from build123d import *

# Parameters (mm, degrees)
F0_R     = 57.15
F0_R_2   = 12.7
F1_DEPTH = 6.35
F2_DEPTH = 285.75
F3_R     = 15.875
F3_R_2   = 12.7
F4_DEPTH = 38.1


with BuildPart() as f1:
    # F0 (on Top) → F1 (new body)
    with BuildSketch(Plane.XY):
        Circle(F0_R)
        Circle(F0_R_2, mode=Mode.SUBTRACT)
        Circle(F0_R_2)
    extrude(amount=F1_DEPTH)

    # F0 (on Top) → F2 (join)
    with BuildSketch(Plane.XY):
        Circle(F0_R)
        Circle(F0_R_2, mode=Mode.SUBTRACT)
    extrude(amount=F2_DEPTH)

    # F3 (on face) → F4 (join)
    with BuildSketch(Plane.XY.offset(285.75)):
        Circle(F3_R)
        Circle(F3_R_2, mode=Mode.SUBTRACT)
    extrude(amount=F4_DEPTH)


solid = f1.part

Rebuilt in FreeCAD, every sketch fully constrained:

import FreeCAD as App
import Part
import Sketcher

V = App.Vector
Q = App.Units.Quantity

doc = App.newDocument("Part")
body = doc.addObject("PartDesign::Body", "Body")

sketch1 = doc.addObject("Sketcher::SketchObject", "Sketch")
body.addObject(sketch1)
sketch1.AttachmentSupport = (doc.XY_Plane, [""])
sketch1.MapMode = "FlatFace"
sketch1.addGeometry(Part.Circle(V(0, 0, 0), V(0, 0, 1), 57.15), False)
sketch1.addConstraint([
    Sketcher.Constraint("Coincident", 0, 3, -1, 1),
    Sketcher.Constraint("Diameter", 0, Q("4.5 in")),
])
pad1 = doc.addObject("PartDesign::Pad", "Pad")
body.addObject(pad1)
pad1.Profile = sketch1
pad1.Length = Q("0.25 in")

sketch2 = doc.addObject("Sketcher::SketchObject", "Sketch001")
body.addObject(sketch2)
sketch2.AttachmentSupport = (doc.XY_Plane, [""])
sketch2.MapMode = "FlatFace"
sketch2.addGeometry([
    Part.Circle(V(0, 0, 0), V(0, 0, 1), 57.15),
    Part.Circle(V(0, 0, 0), V(0, 0, 1), 12.7),
], False)
sketch2.addConstraint([
    Sketcher.Constraint("Coincident", 0, 3, -1, 1),
    Sketcher.Constraint("Coincident", 1, 3, -1, 1),
    Sketcher.Constraint("Diameter", 1, Q("1 in")),
    Sketcher.Constraint("Diameter", 0, Q("4.5 in")),
])
pad2 = doc.addObject("PartDesign::Pad", "Pad001")
body.addObject(pad2)
pad2.Profile = sketch2
pad2.Length = Q("11.25 in")

sketch3 = doc.addObject("Sketcher::SketchObject", "Sketch002")
body.addObject(sketch3)
sketch3.AttachmentSupport = (doc.XY_Plane, [""])
sketch3.MapMode = "FlatFace"
sketch3.AttachmentOffset = App.Placement(V(0, 0, 11.25 * 25.4), App.Rotation())
sketch3.addGeometry([
    Part.Circle(V(0, 0, 0), V(0, 0, 1), 15.875),
    Part.Circle(V(0, 0, 0), V(0, 0, 1), 12.7),
], False)
sketch3.addConstraint([
    Sketcher.Constraint("Coincident", 0, 3, -1, 1),
    Sketcher.Constraint("Coincident", 1, 3, -1, 1),
    Sketcher.Constraint("Diameter", 1, Q("1 in")),
    Sketcher.Constraint("Diameter", 0, Q("1.25 in")),
])
pad3 = doc.addObject("PartDesign::Pad", "Pad002")
body.addObject(pad3)
pad3.Profile = sketch3
pad3.Length = Q("1.5 in")

doc.recompute()
